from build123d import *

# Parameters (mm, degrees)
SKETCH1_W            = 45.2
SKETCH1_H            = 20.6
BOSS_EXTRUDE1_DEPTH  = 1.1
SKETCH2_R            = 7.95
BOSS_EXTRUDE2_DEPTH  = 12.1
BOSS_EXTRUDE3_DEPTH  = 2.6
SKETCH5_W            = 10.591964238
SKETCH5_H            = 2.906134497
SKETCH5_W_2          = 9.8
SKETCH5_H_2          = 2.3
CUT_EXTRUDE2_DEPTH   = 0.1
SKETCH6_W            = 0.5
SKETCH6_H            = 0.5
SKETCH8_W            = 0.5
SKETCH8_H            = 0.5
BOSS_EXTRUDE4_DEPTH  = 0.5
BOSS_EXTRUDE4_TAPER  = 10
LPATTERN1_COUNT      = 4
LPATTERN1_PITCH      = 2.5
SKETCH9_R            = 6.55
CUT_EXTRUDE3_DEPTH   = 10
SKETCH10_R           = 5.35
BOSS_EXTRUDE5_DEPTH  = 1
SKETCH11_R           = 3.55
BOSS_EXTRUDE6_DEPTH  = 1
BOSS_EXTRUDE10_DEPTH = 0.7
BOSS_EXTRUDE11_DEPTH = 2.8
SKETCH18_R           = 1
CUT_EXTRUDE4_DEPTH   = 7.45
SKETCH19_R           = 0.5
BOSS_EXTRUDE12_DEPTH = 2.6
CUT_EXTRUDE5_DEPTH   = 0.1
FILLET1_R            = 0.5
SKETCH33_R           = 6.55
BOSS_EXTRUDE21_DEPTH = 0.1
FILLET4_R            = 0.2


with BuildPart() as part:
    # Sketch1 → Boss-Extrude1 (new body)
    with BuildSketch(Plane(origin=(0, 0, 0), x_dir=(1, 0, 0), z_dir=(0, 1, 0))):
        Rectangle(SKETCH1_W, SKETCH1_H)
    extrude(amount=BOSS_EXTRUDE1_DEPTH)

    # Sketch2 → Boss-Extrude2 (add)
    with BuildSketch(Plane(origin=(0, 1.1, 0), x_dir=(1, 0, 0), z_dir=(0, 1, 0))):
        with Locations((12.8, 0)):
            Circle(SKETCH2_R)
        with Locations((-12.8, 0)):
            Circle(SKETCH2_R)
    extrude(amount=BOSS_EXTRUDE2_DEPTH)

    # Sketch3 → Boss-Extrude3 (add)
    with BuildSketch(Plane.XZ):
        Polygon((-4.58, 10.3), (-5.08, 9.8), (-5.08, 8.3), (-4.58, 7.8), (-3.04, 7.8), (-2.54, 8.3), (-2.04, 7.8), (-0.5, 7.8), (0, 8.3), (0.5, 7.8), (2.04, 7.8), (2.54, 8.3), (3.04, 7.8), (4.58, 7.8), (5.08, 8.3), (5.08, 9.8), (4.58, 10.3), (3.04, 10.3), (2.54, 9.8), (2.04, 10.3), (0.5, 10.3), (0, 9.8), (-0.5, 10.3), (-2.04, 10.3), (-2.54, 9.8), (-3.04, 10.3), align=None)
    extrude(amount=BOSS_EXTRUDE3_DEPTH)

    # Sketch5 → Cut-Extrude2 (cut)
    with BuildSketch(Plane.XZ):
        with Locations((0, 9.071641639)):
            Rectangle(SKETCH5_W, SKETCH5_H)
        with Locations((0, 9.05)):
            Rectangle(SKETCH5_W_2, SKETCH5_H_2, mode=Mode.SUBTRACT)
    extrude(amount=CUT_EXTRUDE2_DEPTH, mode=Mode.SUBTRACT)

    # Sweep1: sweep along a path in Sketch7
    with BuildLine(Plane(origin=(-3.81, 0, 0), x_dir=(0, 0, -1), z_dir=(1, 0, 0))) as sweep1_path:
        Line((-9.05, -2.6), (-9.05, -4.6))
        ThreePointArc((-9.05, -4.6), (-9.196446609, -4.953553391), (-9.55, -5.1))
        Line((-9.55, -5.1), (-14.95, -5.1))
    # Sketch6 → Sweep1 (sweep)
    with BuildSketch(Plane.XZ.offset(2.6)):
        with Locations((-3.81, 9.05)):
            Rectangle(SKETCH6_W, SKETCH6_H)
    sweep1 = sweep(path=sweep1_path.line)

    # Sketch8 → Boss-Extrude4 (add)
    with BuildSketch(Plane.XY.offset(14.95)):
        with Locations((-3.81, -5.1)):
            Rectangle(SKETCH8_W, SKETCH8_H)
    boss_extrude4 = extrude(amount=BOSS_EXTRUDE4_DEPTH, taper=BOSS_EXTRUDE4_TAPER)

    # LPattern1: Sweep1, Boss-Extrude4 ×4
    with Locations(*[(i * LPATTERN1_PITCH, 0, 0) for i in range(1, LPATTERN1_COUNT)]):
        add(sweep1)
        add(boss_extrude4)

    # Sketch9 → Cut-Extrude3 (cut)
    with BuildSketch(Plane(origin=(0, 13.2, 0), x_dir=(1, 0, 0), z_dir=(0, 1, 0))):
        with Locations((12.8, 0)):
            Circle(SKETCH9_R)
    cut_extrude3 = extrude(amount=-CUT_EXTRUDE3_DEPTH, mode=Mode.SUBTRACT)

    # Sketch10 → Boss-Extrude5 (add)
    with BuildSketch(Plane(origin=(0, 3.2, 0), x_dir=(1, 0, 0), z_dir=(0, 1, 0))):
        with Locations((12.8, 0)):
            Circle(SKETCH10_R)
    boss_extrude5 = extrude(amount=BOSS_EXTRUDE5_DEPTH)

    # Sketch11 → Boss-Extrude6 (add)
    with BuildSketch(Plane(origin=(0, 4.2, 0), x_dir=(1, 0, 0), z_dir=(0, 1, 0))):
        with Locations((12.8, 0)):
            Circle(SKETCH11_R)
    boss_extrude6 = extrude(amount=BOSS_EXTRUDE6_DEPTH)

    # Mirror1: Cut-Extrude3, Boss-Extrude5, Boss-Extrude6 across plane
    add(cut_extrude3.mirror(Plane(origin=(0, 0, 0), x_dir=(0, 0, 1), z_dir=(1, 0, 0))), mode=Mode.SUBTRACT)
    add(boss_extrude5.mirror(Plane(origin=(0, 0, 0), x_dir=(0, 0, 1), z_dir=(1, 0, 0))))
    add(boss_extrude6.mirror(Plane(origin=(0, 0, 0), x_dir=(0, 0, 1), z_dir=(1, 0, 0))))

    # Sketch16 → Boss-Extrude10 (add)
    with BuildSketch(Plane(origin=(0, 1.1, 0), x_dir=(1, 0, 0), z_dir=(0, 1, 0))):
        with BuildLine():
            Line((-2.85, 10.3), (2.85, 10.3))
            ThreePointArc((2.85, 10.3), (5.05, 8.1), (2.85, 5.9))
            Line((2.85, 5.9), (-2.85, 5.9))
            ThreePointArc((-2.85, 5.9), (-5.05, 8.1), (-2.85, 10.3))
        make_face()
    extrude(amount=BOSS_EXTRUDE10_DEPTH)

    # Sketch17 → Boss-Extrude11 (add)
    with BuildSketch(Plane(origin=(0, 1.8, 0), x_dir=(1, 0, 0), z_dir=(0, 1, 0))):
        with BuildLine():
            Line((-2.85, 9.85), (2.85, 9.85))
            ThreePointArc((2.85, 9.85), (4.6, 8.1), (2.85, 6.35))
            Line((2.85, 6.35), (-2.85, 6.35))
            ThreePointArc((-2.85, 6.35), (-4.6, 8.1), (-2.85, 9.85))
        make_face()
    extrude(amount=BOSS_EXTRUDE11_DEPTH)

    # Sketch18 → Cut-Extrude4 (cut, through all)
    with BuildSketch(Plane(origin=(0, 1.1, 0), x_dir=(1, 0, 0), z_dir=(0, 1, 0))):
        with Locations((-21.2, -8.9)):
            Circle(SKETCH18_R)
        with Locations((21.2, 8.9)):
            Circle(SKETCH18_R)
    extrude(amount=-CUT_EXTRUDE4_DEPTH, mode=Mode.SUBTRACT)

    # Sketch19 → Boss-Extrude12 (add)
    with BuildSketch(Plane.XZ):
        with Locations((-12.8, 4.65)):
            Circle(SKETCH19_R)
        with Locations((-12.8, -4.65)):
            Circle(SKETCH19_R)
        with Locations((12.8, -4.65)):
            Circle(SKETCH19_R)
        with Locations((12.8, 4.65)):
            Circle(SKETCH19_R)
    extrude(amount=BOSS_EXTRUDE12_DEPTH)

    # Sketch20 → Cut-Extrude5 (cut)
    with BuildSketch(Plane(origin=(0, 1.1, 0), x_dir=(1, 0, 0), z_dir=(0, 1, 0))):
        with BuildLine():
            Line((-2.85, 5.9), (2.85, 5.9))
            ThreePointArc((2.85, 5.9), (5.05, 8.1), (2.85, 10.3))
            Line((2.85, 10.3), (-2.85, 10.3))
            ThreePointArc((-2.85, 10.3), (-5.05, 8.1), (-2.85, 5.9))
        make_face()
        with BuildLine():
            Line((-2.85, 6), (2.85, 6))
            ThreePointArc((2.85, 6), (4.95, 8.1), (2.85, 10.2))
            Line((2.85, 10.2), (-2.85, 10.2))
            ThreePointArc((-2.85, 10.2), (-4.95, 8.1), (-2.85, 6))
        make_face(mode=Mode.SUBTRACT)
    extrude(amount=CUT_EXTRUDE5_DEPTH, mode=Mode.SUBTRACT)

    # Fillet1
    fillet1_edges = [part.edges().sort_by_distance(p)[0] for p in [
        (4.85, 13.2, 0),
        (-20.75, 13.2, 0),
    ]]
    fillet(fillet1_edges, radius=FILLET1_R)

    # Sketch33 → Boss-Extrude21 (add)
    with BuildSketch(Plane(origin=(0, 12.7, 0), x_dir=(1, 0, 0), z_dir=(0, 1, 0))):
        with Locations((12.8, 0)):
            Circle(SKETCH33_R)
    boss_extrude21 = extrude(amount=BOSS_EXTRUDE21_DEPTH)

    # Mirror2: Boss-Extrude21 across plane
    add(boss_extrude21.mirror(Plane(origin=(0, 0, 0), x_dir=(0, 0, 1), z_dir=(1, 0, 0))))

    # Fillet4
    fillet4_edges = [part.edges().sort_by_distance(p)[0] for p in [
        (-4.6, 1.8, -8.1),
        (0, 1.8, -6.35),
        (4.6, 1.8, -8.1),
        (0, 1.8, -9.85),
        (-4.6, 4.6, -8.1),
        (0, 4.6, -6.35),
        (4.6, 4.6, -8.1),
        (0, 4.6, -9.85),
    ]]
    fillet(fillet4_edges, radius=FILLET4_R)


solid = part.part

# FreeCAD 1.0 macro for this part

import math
import FreeCAD as App
import Part
import Sketcher

V = App.Vector


def edges_at(feature, points):
    """Names of the edges that pass closest to the given points."""
    edges = feature.Shape.Edges
    near = lambda p: min(range(len(edges)), key=lambda i: edges[i].distToShape(Part.Vertex(*p))[0])
    return sorted({f"Edge{near(p) + 1}" for p in points})

doc = App.newDocument("Part")
body = doc.addObject("PartDesign::Body", "Body")

# Sketch on XZ plane
sketch1 = body.newObject("Sketcher::SketchObject", "Sketch")
sketch1.AttachmentSupport = (doc.getObject("XZ_Plane"), [""])
sketch1.MapMode = "FlatFace"
sketch1.addGeometry(Part.LineSegment(V(-23, -10, 0), V(-23, 10, 0)), False)
sketch1.addGeometry(Part.LineSegment(V(-23, 10, 0), V(23, 10, 0)), False)
sketch1.addGeometry(Part.LineSegment(V(23, 10, 0), V(23, -10, 0)), False)
sketch1.addGeometry(Part.LineSegment(V(23, -10, 0), V(-23, -10, 0)), False)
sketch1.addConstraint(Sketcher.Constraint("Coincident", 0, 2, 1, 1))
sketch1.addConstraint(Sketcher.Constraint("Coincident", 1, 2, 2, 1))
sketch1.addConstraint(Sketcher.Constraint("Coincident", 2, 2, 3, 1))
sketch1.addConstraint(Sketcher.Constraint("Coincident", 3, 2, 0, 1))
sketch1.addConstraint(Sketcher.Constraint("Vertical", 0))
sketch1.addConstraint(Sketcher.Constraint("Horizontal", 1))
sketch1.addConstraint(Sketcher.Constraint("Vertical", 2))
sketch1.addConstraint(Sketcher.Constraint("Horizontal", 3))
sketch1.addConstraint(Sketcher.Constraint("Symmetric", 0, 2, 2, 2, -1, 1))
sketch1.addConstraint(Sketcher.Constraint("DistanceX", 1, 1, 1, 2, 45.2))
sketch1.addConstraint(Sketcher.Constraint("DistanceY", 0, 1, 0, 2, 20.6))
pad1 = body.newObject("PartDesign::Pad", "Pad")
pad1.Profile = sketch1
pad1.Length = 1.1
pad1.Reversed = True

# Sketch on XZ plane
sketch2 = body.newObject("Sketcher::SketchObject", "Sketch001")
sketch2.AttachmentSupport = (doc.getObject("XZ_Plane"), [""])
sketch2.MapMode = "FlatFace"
sketch2.AttachmentOffset = App.Placement(V(0, 0, -1.1), App.Rotation())
sketch2.addGeometry(Part.Circle(V(13, 0, 0), V(0, 0, 1), 8), False)
sketch2.addGeometry(Part.Circle(V(-13, 0, 0), V(0, 0, 1), 8), False)
sketch2.addConstraint(Sketcher.Constraint("Equal", 0, 1))
sketch2.addConstraint(Sketcher.Constraint("Symmetric", 0, 3, 1, 3, -1, 1))
sketch2.addConstraint(Sketcher.Constraint("PointOnObject", 0, 3, -1))
sketch2.addConstraint(Sketcher.Constraint("Diameter", 0, 15.9))
sketch2.addConstraint(Sketcher.Constraint("DistanceX", -1, 1, 0, 3, 12.8))
pad2 = body.newObject("PartDesign::Pad", "Pad001")
pad2.Profile = sketch2
pad2.Length = 12.1
pad2.Reversed = True

# Sketch on XZ plane
sketch3 = body.newObject("Sketcher::SketchObject", "Sketch002")
sketch3.AttachmentSupport = (doc.getObject("XZ_Plane"), [""])
sketch3.MapMode = "FlatFace"
sketch3.addGeometry(Part.LineSegment(V(-4.6, 10.3, 0), V(-5.1, 9.8, 0)), False)
sketch3.addGeometry(Part.LineSegment(V(-5.1, 9.8, 0), V(-5.1, 8.3, 0)), False)
sketch3.addGeometry(Part.LineSegment(V(-5.1, 8.3, 0), V(-4.6, 7.8, 0)), False)
sketch3.addGeometry(Part.LineSegment(V(-4.6, 7.8, 0), V(-3, 7.8, 0)), False)
sketch3.addGeometry(Part.LineSegment(V(-3, 7.8, 0), V(-2.5, 8.3, 0)), False)
sketch3.addGeometry(Part.LineSegment(V(-2.5, 8.3, 0), V(-2, 7.8, 0)), False)
sketch3.addGeometry(Part.LineSegment(V(-2, 7.8, 0), V(-0.5, 7.8, 0)), False)
sketch3.addGeometry(Part.LineSegment(V(-0.5, 7.8, 0), V(0, 8.3, 0)), False)
sketch3.addGeometry(Part.LineSegment(V(0, 8.3, 0), V(0.5, 7.8, 0)), False)
sketch3.addGeometry(Part.LineSegment(V(0.5, 7.8, 0), V(2, 7.8, 0)), False)
sketch3.addGeometry(Part.LineSegment(V(2, 7.8, 0), V(2.5, 8.3, 0)), False)
sketch3.addGeometry(Part.LineSegment(V(2.5, 8.3, 0), V(3, 7.8, 0)), False)
sketch3.addGeometry(Part.LineSegment(V(3, 7.8, 0), V(4.6, 7.8, 0)), False)
sketch3.addGeometry(Part.LineSegment(V(4.6, 7.8, 0), V(5.1, 8.3, 0)), False)
sketch3.addGeometry(Part.LineSegment(V(5.1, 8.3, 0), V(5.1, 9.8, 0)), False)
sketch3.addGeometry(Part.LineSegment(V(5.1, 9.8, 0), V(4.6, 10.3, 0)), False)
sketch3.addGeometry(Part.LineSegment(V(4.6, 10.3, 0), V(3, 10.3, 0)), False)
sketch3.addGeometry(Part.LineSegment(V(3, 10.3, 0), V(2.5, 9.8, 0)), False)
sketch3.addGeometry(Part.LineSegment(V(2.5, 9.8, 0), V(2, 10.3, 0)), False)
sketch3.addGeometry(Part.LineSegment(V(2, 10.3, 0), V(0.5, 10.3, 0)), False)
sketch3.addGeometry(Part.LineSegment(V(0.5, 10.3, 0), V(0, 9.8, 0)), False)
sketch3.addGeometry(Part.LineSegment(V(0, 9.8, 0), V(-0.5, 10.3, 0)), False)
sketch3.addGeometry(Part.LineSegment(V(-0.5, 10.3, 0), V(-2, 10.3, 0)), False)
sketch3.addGeometry(Part.LineSegment(V(-2, 10.3, 0), V(-2.5, 9.8, 0)), False)
sketch3.addGeometry(Part.LineSegment(V(-2.5, 9.8, 0), V(-3, 10.3, 0)), False)
sketch3.addGeometry(Part.LineSegment(V(-3, 10.3, 0), V(-4.6, 10.3, 0)), False)
sketch3.addConstraint(Sketcher.Constraint("Coincident", 0, 2, 1, 1))
sketch3.addConstraint(Sketcher.Constraint("Coincident", 1, 2, 2, 1))
sketch3.addConstraint(Sketcher.Constraint("Coincident", 2, 2, 3, 1))
sketch3.addConstraint(Sketcher.Constraint("Coincident", 3, 2, 4, 1))
sketch3.addConstraint(Sketcher.Constraint("Coincident", 4, 2, 5, 1))
sketch3.addConstraint(Sketcher.Constraint("Coincident", 5, 2, 6, 1))
sketch3.addConstraint(Sketcher.Constraint("Coincident", 6, 2, 7, 1))
sketch3.addConstraint(Sketcher.Constraint("Coincident", 7, 2, 8, 1))
sketch3.addConstraint(Sketcher.Constraint("Coincident", 8, 2, 9, 1))
sketch3.addConstraint(Sketcher.Constraint("Coincident", 9, 2, 10, 1))
sketch3.addConstraint(Sketcher.Constraint("Coincident", 10, 2, 11, 1))
sketch3.addConstraint(Sketcher.Constraint("Coincident", 11, 2, 12, 1))
sketch3.addConstraint(Sketcher.Constraint("Coincident", 12, 2, 13, 1))
sketch3.addConstraint(Sketcher.Constraint("Coincident", 13, 2, 14, 1))
sketch3.addConstraint(Sketcher.Constraint("Coincident", 14, 2, 15, 1))
sketch3.addConstraint(Sketcher.Constraint("Coincident", 15, 2, 16, 1))
sketch3.addConstraint(Sketcher.Constraint("Coincident", 16, 2, 17, 1))
sketch3.addConstraint(Sketcher.Constraint("Coincident", 17, 2, 18, 1))
sketch3.addConstraint(Sketcher.Constraint("Coincident", 18, 2, 19, 1))
sketch3.addConstraint(Sketcher.Constraint("Coincident", 19, 2, 20, 1))
sketch3.addConstraint(Sketcher.Constraint("Coincident", 20, 2, 21, 1))
sketch3.addConstraint(Sketcher.Constraint("Coincident", 21, 2, 22, 1))
sketch3.addConstraint(Sketcher.Constraint("Coincident", 22, 2, 23, 1))
sketch3.addConstraint(Sketcher.Constraint("Coincident", 23, 2, 24, 1))
sketch3.addConstraint(Sketcher.Constraint("Coincident", 24, 2, 25, 1))
sketch3.addConstraint(Sketcher.Constraint("Coincident", 25, 2, 0, 1))
sketch3.addConstraint(Sketcher.Constraint("Vertical", 1))
sketch3.addConstraint(Sketcher.Constraint("Horizontal", 3))
sketch3.addConstraint(Sketcher.Constraint("Horizontal", 6))
sketch3.addConstraint(Sketcher.Constraint("Horizontal", 9))
sketch3.addConstraint(Sketcher.Constraint("Horizontal", 12))
sketch3.addConstraint(Sketcher.Constraint("Vertical", 14))
sketch3.addConstraint(Sketcher.Constraint("Horizontal", 16))
sketch3.addConstraint(Sketcher.Constraint("Horizontal", 19))
sketch3.addConstraint(Sketcher.Constraint("Horizontal", 22))
sketch3.addConstraint(Sketcher.Constraint("Horizontal", 25))
sketch3.addConstraint(Sketcher.Constraint("Symmetric", 6, 2, 8, 2, -2))
sketch3.addConstraint(Sketcher.Constraint("Symmetric", 4, 2, 10, 2, -2))
sketch3.addConstraint(Sketcher.Constraint("Symmetric", 3, 2, 11, 2, -2))
sketch3.addConstraint(Sketcher.Constraint("Symmetric", 1, 2, 13, 2, -2))
sketch3.addConstraint(Sketcher.Constraint("Symmetric", 19, 2, 21, 2, -2))
sketch3.addConstraint(Sketcher.Constraint("Symmetric", 17, 2, 23, 2, -2))
sketch3.addConstraint(Sketcher.Constraint("Symmetric", 16, 2, 24, 2, -2))
sketch3.addConstraint(Sketcher.Constraint("PointOnObject", 7, 2, -2))
sketch3.addConstraint(Sketcher.Constraint("PointOnObject", 20, 2, -2))
sketch3.addConstraint(Sketcher.Constraint("Perpendicular", 0, 2))
sketch3.addConstraint(Sketcher.Constraint("Perpendicular", 2, 4))
sketch3.addConstraint(Sketcher.Constraint("Perpendicular", 4, 5))
sketch3.addConstraint(Sketcher.Constraint("Perpendicular", 5, 7))
sketch3.addConstraint(Sketcher.Constraint("Perpendicular", 7, 8))
sketch3.addConstraint(Sketcher.Constraint("Perpendicular", 8, 10))
sketch3.addConstraint(Sketcher.Constraint("Perpendicular", 11, 13))
sketch3.addConstraint(Sketcher.Constraint("Perpendicular", 13, 15))
sketch3.addConstraint(Sketcher.Constraint("Perpendicular", 15, 17))
sketch3.addConstraint(Sketcher.Constraint("Perpendicular", 17, 18))
sketch3.addConstraint(Sketcher.Constraint("Perpendicular", 18, 20))
sketch3.addConstraint(Sketcher.Constraint("Perpendicular", 21, 23))
sketch3.addConstraint(Sketcher.Constraint("Horizontal", 1, 2, 4, 2))
sketch3.addConstraint(Sketcher.Constraint("Horizontal", 3, 2, 5, 2))
sketch3.addConstraint(Sketcher.Constraint("Horizontal", 4, 2, 7, 2))
sketch3.addConstraint(Sketcher.Constraint("Horizontal", 0, 2, 14, 2))
sketch3.addConstraint(Sketcher.Constraint("Horizontal", 14, 2, 17, 2))
sketch3.addConstraint(Sketcher.Constraint("Horizontal", 16, 2, 18, 2))
sketch3.addConstraint(Sketcher.Constraint("Horizontal", 17, 2, 20, 2))
sketch3.addConstraint(Sketcher.Constraint("Vertical", 12, 2, 15, 2))
sketch3.addConstraint(Sketcher.Constraint("Vertical", 11, 2, 16, 2))
sketch3.addConstraint(Sketcher.Constraint("Equal", 3, 6))
sketch3.addConstraint(Sketcher.Constraint("DistanceY", 1, 2, 1, 1, 1.5))
sketch3.addConstraint(Sketcher.Constraint("DistanceY", 2, 2, 0, 2, 2.0))
sketch3.addConstraint(Sketcher.Constraint("DistanceX", 3, 1, 3, 2, 1.54))
sketch3.addConstraint(Sketcher.Constraint("DistanceY", -1, 1, 0, 2, 9.8))
pad3 = body.newObject("PartDesign::Pad", "Pad002")
pad3.Profile = sketch3
pad3.Length = 2.6

# Sketch on XZ plane
sketch4 = body.newObject("Sketcher::SketchObject", "Sketch003")
sketch4.AttachmentSupport = (doc.getObject("XZ_Plane"), [""])
sketch4.MapMode = "FlatFace"
sketch4.addGeometry(Part.LineSegment(V(-5.3, 10.5, 0), V(-5.3, 7.6, 0)), False)
sketch4.addGeometry(Part.LineSegment(V(-5.3, 7.6, 0), V(5.3, 7.6, 0)), False)
sketch4.addGeometry(Part.LineSegment(V(5.3, 7.6, 0), V(5.3, 10.5, 0)), False)
sketch4.addGeometry(Part.LineSegment(V(5.3, 10.5, 0), V(-5.3, 10.5, 0)), False)
sketch4.addGeometry(Part.LineSegment(V(4.9, 7.9, 0), V(-4.9, 7.9, 0)), False)
sketch4.addGeometry(Part.LineSegment(V(-4.9, 7.9, 0), V(-4.9, 10.2, 0)), False)
sketch4.addGeometry(Part.LineSegment(V(-4.9, 10.2, 0), V(4.9, 10.2, 0)), False)
sketch4.addGeometry(Part.LineSegment(V(4.9, 10.2, 0), V(4.9, 7.9, 0)), False)
sketch4.addConstraint(Sketcher.Constraint("Coincident", 0, 2, 1, 1))
sketch4.addConstraint(Sketcher.Constraint("Coincident", 1, 2, 2, 1))
sketch4.addConstraint(Sketcher.Constraint("Coincident", 2, 2, 3, 1))
sketch4.addConstraint(Sketcher.Constraint("Coincident", 3, 2, 0, 1))
sketch4.addConstraint(Sketcher.Constraint("Coincident", 4, 2, 5, 1))
sketch4.addConstraint(Sketcher.Constraint("Coincident", 5, 2, 6, 1))
sketch4.addConstraint(Sketcher.Constraint("Coincident", 6, 2, 7, 1))
sketch4.addConstraint(Sketcher.Constraint("Coincident", 7, 2, 4, 1))
sketch4.addConstraint(Sketcher.Constraint("Vertical", 0))
sketch4.addConstraint(Sketcher.Constraint("Horizontal", 1))
sketch4.addConstraint(Sketcher.Constraint("Vertical", 2))
sketch4.addConstraint(Sketcher.Constraint("Horizontal", 3))
sketch4.addConstraint(Sketcher.Constraint("Horizontal", 4))
sketch4.addConstraint(Sketcher.Constraint("Vertical", 5))
sketch4.addConstraint(Sketcher.Constraint("Horizontal", 6))
sketch4.addConstraint(Sketcher.Constraint("Vertical", 7))
sketch4.addConstraint(Sketcher.Constraint("DistanceX", 4, 2, 4, 1, 9.8))
sketch4.addConstraint(Sketcher.Constraint("DistanceY", 5, 1, 5, 2, 2.3))
sketch4.addConstraint(Sketcher.Constraint("DistanceX", 4, 2, -1, 1, 4.9))
sketch4.addConstraint(Sketcher.Constraint("DistanceY", -1, 1, 4, 2, 7.9))
sketch4.addConstraint(Sketcher.Constraint("DistanceX", 1, 1, 1, 2, 10.591964))
sketch4.addConstraint(Sketcher.Constraint("DistanceY", 0, 2, 0, 1, 2.906134))
sketch4.addConstraint(Sketcher.Constraint("DistanceY", -1, 1, 2, 2, 10.524709))
sketch4.addConstraint(Sketcher.Constraint("DistanceX", 0, 2, -1, 1, 5.295982))
pocket1 = body.newObject("PartDesign::Pocket", "Pocket")
pocket1.Profile = sketch4
pocket1.Length = 0.1
pocket1.Reversed = True

# Sketch on XZ plane
sketch5 = body.newObject("Sketcher::SketchObject", "Sketch004")
sketch5.AttachmentSupport = (doc.getObject("XZ_Plane"), [""])
sketch5.MapMode = "FlatFace"
sketch5.AttachmentOffset = App.Placement(V(0, 0, 2.6), App.Rotation())
sketch5.addGeometry(Part.LineSegment(V(-4.06, 9.3, 0), V(-4.06, 8.8, 0)), False)
sketch5.addGeometry(Part.LineSegment(V(-4.06, 8.8, 0), V(-3.56, 8.8, 0)), False)
sketch5.addGeometry(Part.LineSegment(V(-3.56, 8.8, 0), V(-3.56, 9.3, 0)), False)
sketch5.addGeometry(Part.LineSegment(V(-3.56, 9.3, 0), V(-4.06, 9.3, 0)), False)
sketch5.addConstraint(Sketcher.Constraint("Coincident", 0, 2, 1, 1))
sketch5.addConstraint(Sketcher.Constraint("Coincident", 1, 2, 2, 1))
sketch5.addConstraint(Sketcher.Constraint("Coincident", 2, 2, 3, 1))
sketch5.addConstraint(Sketcher.Constraint("Coincident", 3, 2, 0, 1))
sketch5.addConstraint(Sketcher.Constraint("Vertical", 0))
sketch5.addConstraint(Sketcher.Constraint("Horizontal", 1))
sketch5.addConstraint(Sketcher.Constraint("Vertical", 2))
sketch5.addConstraint(Sketcher.Constraint("Horizontal", 3))
sketch5.addConstraint(Sketcher.Constraint("Equal", 3, 0))
sketch5.addConstraint(Sketcher.Constraint("DistanceX", 1, 1, 1, 2, 0.5))
sketch5.addConstraint(Sketcher.Constraint("DistanceY", -1, 1, 0, 2, 8.8))
sketch5.addConstraint(Sketcher.Constraint("DistanceX", 0, 2, -1, 1, 4.06))

# Sketch on YZ plane
sketch6 = body.newObject("Sketcher::SketchObject", "Sketch005")
sketch6.AttachmentSupport = (doc.getObject("YZ_Plane"), [""])
sketch6.MapMode = "FlatFace"
sketch6.AttachmentOffset = App.Placement(V(0, 0, -3.81), App.Rotation())
sketch6.addGeometry(Part.LineSegment(V(-2.6, 9.05, 0), V(-4.6, 9.05, 0)), False)
sketch6.addGeometry(Part.ArcOfCircle(Part.Circle(V(-4.6, 9.55, 0), V(0, 0, 1), 0.5), math.radians(180), math.radians(270)), False)
sketch6.addGeometry(Part.LineSegment(V(-5.1, 9.55, 0), V(-5.1, 14.95, 0)), False)
sketch6.addConstraint(Sketcher.Constraint("Tangent", 0, 2, 1, 2))
sketch6.addConstraint(Sketcher.Constraint("Tangent", 1, 1, 2, 1))
sketch6.addConstraint(Sketcher.Constraint("Horizontal", 0))
sketch6.addConstraint(Sketcher.Constraint("Vertical", 2))
sketch6.addConstraint(Sketcher.Constraint("Radius", 1, 0.5))
sketch6.addConstraint(Sketcher.Constraint("DistanceX", 0, 2, 0, 1, 2.0))
sketch6.addConstraint(Sketcher.Constraint("DistanceY", 2, 1, 2, 2, 5.4))
sketch6.addConstraint(Sketcher.Constraint("DistanceX", 1, 3, -1, 1, 4.6))
sketch6.addConstraint(Sketcher.Constraint("DistanceY", -1, 1, 1, 3, 9.55))
doc.recompute()

additivepipe = body.newObject("PartDesign::AdditivePipe", "AdditivePipe")
additivepipe.Profile = sketch5
additivepipe.Spine = (sketch6, ["Edge1", "Edge2", "Edge3"])

# Sketch on XY plane
sketch7 = body.newObject("Sketcher::SketchObject", "Sketch006")
sketch7.AttachmentSupport = (doc.getObject("XY_Plane"), [""])
sketch7.MapMode = "FlatFace"
sketch7.AttachmentOffset = App.Placement(V(0, 0, 14.95), App.Rotation())
sketch7.addGeometry(Part.LineSegment(V(-4.06, -4.85, 0), V(-4.06, -5.35, 0)), False)
sketch7.addGeometry(Part.LineSegment(V(-4.06, -5.35, 0), V(-3.56, -5.35, 0)), False)
sketch7.addGeometry(Part.LineSegment(V(-3.56, -5.35, 0), V(-3.56, -4.85, 0)), False)
sketch7.addGeometry(Part.LineSegment(V(-3.56, -4.85, 0), V(-4.06, -4.85, 0)), False)
sketch7.addConstraint(Sketcher.Constraint("Coincident", 0, 2, 1, 1))
sketch7.addConstraint(Sketcher.Constraint("Coincident", 1, 2, 2, 1))
sketch7.addConstraint(Sketcher.Constraint("Coincident", 2, 2, 3, 1))
sketch7.addConstraint(Sketcher.Constraint("Coincident", 3, 2, 0, 1))
sketch7.addConstraint(Sketcher.Constraint("Vertical", 0))
sketch7.addConstraint(Sketcher.Constraint("Horizontal", 1))
sketch7.addConstraint(Sketcher.Constraint("Vertical", 2))
sketch7.addConstraint(Sketcher.Constraint("Horizontal", 3))
sketch7.addConstraint(Sketcher.Constraint("Equal", 3, 0))
sketch7.addConstraint(Sketcher.Constraint("DistanceX", 1, 1, 1, 2, 0.5))
sketch7.addConstraint(Sketcher.Constraint("DistanceX", 0, 2, -1, 1, 4.06))
sketch7.addConstraint(Sketcher.Constraint("DistanceY", 0, 2, -1, 1, 5.35))
pad4 = body.newObject("PartDesign::Pad", "Pad003")
pad4.Profile = sketch7
pad4.Length = 0.5
pad4.TaperAngle = -10
doc.recompute()

linearpattern = body.newObject("PartDesign::LinearPattern", "LinearPattern")
linearpattern.Originals = [additivepipe, pad4]
linearpattern.Direction = (doc.getObject("X_Axis"), [""])
linearpattern.Mode = "offset"
linearpattern.Offset = 2.5
linearpattern.Occurrences = 4
body.Tip = linearpattern

# Sketch on XZ plane
sketch8 = body.newObject("Sketcher::SketchObject", "Sketch007")
sketch8.AttachmentSupport = (doc.getObject("XZ_Plane"), [""])
sketch8.MapMode = "FlatFace"
sketch8.AttachmentOffset = App.Placement(V(0, 0, -13.2), App.Rotation())
sketch8.addGeometry(Part.Circle(V(13, 0, 0), V(0, 0, 1), 7), False)
sketch8.addConstraint(Sketcher.Constraint("PointOnObject", 0, 3, -1))
sketch8.addConstraint(Sketcher.Constraint("Diameter", 0, 13.1))
sketch8.addConstraint(Sketcher.Constraint("DistanceX", -1, 1, 0, 3, 12.8))
pocket2 = body.newObject("PartDesign::Pocket", "Pocket001")
pocket2.Profile = sketch8
pocket2.Length = 10
pocket2.Reversed = True

# Sketch on XZ plane
sketch9 = body.newObject("Sketcher::SketchObject", "Sketch008")
sketch9.AttachmentSupport = (doc.getObject("XZ_Plane"), [""])
sketch9.MapMode = "FlatFace"
sketch9.AttachmentOffset = App.Placement(V(0, 0, -3.2), App.Rotation())
sketch9.addGeometry(Part.Circle(V(13, 0, 0), V(0, 0, 1), 5), False)
sketch9.addConstraint(Sketcher.Constraint("PointOnObject", 0, 3, -1))
sketch9.addConstraint(Sketcher.Constraint("Diameter", 0, 10.7))
sketch9.addConstraint(Sketcher.Constraint("DistanceX", -1, 1, 0, 3, 12.8))
pad5 = body.newObject("PartDesign::Pad", "Pad004")
pad5.Profile = sketch9
pad5.Length = 1
pad5.Reversed = True

# Sketch on XZ plane
sketch10 = body.newObject("Sketcher::SketchObject", "Sketch009")
sketch10.AttachmentSupport = (doc.getObject("XZ_Plane"), [""])
sketch10.MapMode = "FlatFace"
sketch10.AttachmentOffset = App.Placement(V(0, 0, -4.2), App.Rotation())
sketch10.addGeometry(Part.Circle(V(12.8, 0, 0), V(0, 0, 1), 3.5), False)
sketch10.addConstraint(Sketcher.Constraint("PointOnObject", 0, 3, -1))
sketch10.addConstraint(Sketcher.Constraint("Diameter", 0, 7.1))
sketch10.addConstraint(Sketcher.Constraint("DistanceX", -1, 1, 0, 3, 12.8))
pad6 = body.newObject("PartDesign::Pad", "Pad005")
pad6.Profile = sketch10
pad6.Length = 1
pad6.Reversed = True
doc.recompute()

mirrored = body.newObject("PartDesign::Mirrored", "Mirrored")
mirrored.Originals = [pocket2, pad5, pad6]
mirrored.MirrorPlane = (doc.getObject("YZ_Plane"), [""])
body.Tip = mirrored

# Sketch on XZ plane
sketch11 = body.newObject("Sketcher::SketchObject", "Sketch010")
sketch11.AttachmentSupport = (doc.getObject("XZ_Plane"), [""])
sketch11.MapMode = "FlatFace"
sketch11.AttachmentOffset = App.Placement(V(0, 0, -1.1), App.Rotation())
sketch11.addGeometry(Part.LineSegment(V(2.9, -10.3, 0), V(-2.9, -10.3, 0)), False)
sketch11.addGeometry(Part.ArcOfCircle(Part.Circle(V(-2.9, -8.1, 0), V(0, 0, 1), 2.2), math.radians(90), math.radians(270)), False)
sketch11.addGeometry(Part.LineSegment(V(-2.9, -5.9, 0), V(2.9, -5.9, 0)), False)
sketch11.addGeometry(Part.ArcOfCircle(Part.Circle(V(2.9, -8.1, 0), V(0, 0, 1), 2.2), math.radians(-90), math.radians(90)), False)
sketch11.addConstraint(Sketcher.Constraint("Tangent", 0, 2, 1, 2))
sketch11.addConstraint(Sketcher.Constraint("Tangent", 1, 1, 2, 1))
sketch11.addConstraint(Sketcher.Constraint("Tangent", 2, 2, 3, 2))
sketch11.addConstraint(Sketcher.Constraint("Tangent", 3, 1, 0, 1))
sketch11.addConstraint(Sketcher.Constraint("Horizontal", 0))
sketch11.addConstraint(Sketcher.Constraint("Horizontal", 2))
sketch11.addConstraint(Sketcher.Constraint("Radius", 1, 2.2))
sketch11.addConstraint(Sketcher.Constraint("DistanceX", 0, 2, 0, 1, 5.7))
sketch11.addConstraint(Sketcher.Constraint("DistanceY", 1, 3, -1, 1, 8.1))
sketch11.addConstraint(Sketcher.Constraint("DistanceX", 1, 3, -1, 1, 2.85))
pad7 = body.newObject("PartDesign::Pad", "Pad006")
pad7.Profile = sketch11
pad7.Length = 0.7
pad7.Reversed = True

# Sketch on XZ plane
sketch12 = body.newObject("Sketcher::SketchObject", "Sketch011")
sketch12.AttachmentSupport = (doc.getObject("XZ_Plane"), [""])
sketch12.MapMode = "FlatFace"
sketch12.AttachmentOffset = App.Placement(V(0, 0, -1.8), App.Rotation())
sketch12.addGeometry(Part.LineSegment(V(2.9, -9.8, 0), V(-2.9, -9.8, 0)), False)
sketch12.addGeometry(Part.ArcOfCircle(Part.Circle(V(-2.9, -8.1, 0), V(0, 0, 1), 1.8), math.radians(90), math.radians(270)), False)
sketch12.addGeometry(Part.LineSegment(V(-2.9, -6.3, 0), V(2.9, -6.3, 0)), False)
sketch12.addGeometry(Part.ArcOfCircle(Part.Circle(V(2.9, -8.1, 0), V(0, 0, 1), 1.8), math.radians(-90), math.radians(90)), False)
sketch12.addConstraint(Sketcher.Constraint("Tangent", 0, 2, 1, 2))
sketch12.addConstraint(Sketcher.Constraint("Tangent", 1, 1, 2, 1))
sketch12.addConstraint(Sketcher.Constraint("Tangent", 2, 2, 3, 2))
sketch12.addConstraint(Sketcher.Constraint("Tangent", 3, 1, 0, 1))
sketch12.addConstraint(Sketcher.Constraint("Horizontal", 0))
sketch12.addConstraint(Sketcher.Constraint("Horizontal", 2))
sketch12.addConstraint(Sketcher.Constraint("Radius", 1, 1.75))
sketch12.addConstraint(Sketcher.Constraint("DistanceX", 0, 2, 0, 1, 5.7))
sketch12.addConstraint(Sketcher.Constraint("DistanceY", 1, 3, -1, 1, 8.1))
sketch12.addConstraint(Sketcher.Constraint("DistanceX", 1, 3, -1, 1, 2.85))
pad8 = body.newObject("PartDesign::Pad", "Pad007")
pad8.Profile = sketch12
pad8.Length = 2.8
pad8.Reversed = True

# Sketch on XZ plane
sketch13 = body.newObject("Sketcher::SketchObject", "Sketch012")
sketch13.AttachmentSupport = (doc.getObject("XZ_Plane"), [""])
sketch13.MapMode = "FlatFace"
sketch13.AttachmentOffset = App.Placement(V(0, 0, -1.1), App.Rotation())
sketch13.addGeometry(Part.Circle(V(-21.2, 8.9, 0), V(0, 0, 1), 1), False)
sketch13.addGeometry(Part.Circle(V(21.2, -8.9, 0), V(0, 0, 1), 1), False)
sketch13.addConstraint(Sketcher.Constraint("Equal", 0, 1))
sketch13.addConstraint(Sketcher.Constraint("Symmetric", 0, 3, 1, 3, -1, 1))
sketch13.addConstraint(Sketcher.Constraint("Diameter", 0, 2.0))
sketch13.addConstraint(Sketcher.Constraint("DistanceX", 0, 3, -1, 1, 21.2))
sketch13.addConstraint(Sketcher.Constraint("DistanceY", -1, 1, 0, 3, 8.9))
pocket3 = body.newObject("PartDesign::Pocket", "Pocket002")
pocket3.Profile = sketch13
pocket3.Type = "ThroughAll"
pocket3.Reversed = True

# Sketch on XZ plane
sketch14 = body.newObject("Sketcher::SketchObject", "Sketch013")
sketch14.AttachmentSupport = (doc.getObject("XZ_Plane"), [""])
sketch14.MapMode = "FlatFace"
sketch14.addGeometry(Part.Circle(V(-12.8, 4.7, 0), V(0, 0, 1), 0.5), False)
sketch14.addGeometry(Part.Circle(V(-12.8, -4.7, 0), V(0, 0, 1), 0.5), False)
sketch14.addGeometry(Part.Circle(V(12.8, -4.7, 0), V(0, 0, 1), 0.5), False)
sketch14.addGeometry(Part.Circle(V(12.8, 4.7, 0), V(0, 0, 1), 0.5), False)
sketch14.addConstraint(Sketcher.Constraint("Equal", 0, 1))
sketch14.addConstraint(Sketcher.Constraint("Equal", 1, 2))
sketch14.addConstraint(Sketcher.Constraint("Equal", 2, 3))
sketch14.addConstraint(Sketcher.Constraint("Symmetric", 0, 3, 2, 3, -1, 1))
sketch14.addConstraint(Sketcher.Constraint("Symmetric", 1, 3, 3, 3, -1, 1))
sketch14.addConstraint(Sketcher.Constraint("Symmetric", 1, 3, 2, 3, -2))
sketch14.addConstraint(Sketcher.Constraint("Diameter", 0, 1.0))
sketch14.addConstraint(Sketcher.Constraint("DistanceX", 0, 3, -1, 1, 12.8))
sketch14.addConstraint(Sketcher.Constraint("DistanceY", 1, 3, 0, 3, 9.3))
pad9 = body.newObject("PartDesign::Pad", "Pad008")
pad9.Profile = sketch14
pad9.Length = 2.6

# Sketch on XZ plane
sketch15 = body.newObject("Sketcher::SketchObject", "Sketch014")
sketch15.AttachmentSupport = (doc.getObject("XZ_Plane"), [""])
sketch15.MapMode = "FlatFace"
sketch15.AttachmentOffset = App.Placement(V(0, 0, -1.1), App.Rotation())
sketch15.addGeometry(Part.LineSegment(V(-2.9, -5.9, 0), V(2.9, -5.9, 0)), False)
sketch15.addGeometry(Part.ArcOfCircle(Part.Circle(V(2.9, -8.1, 0), V(0, 0, 1), 2.2), math.radians(-90), math.radians(90)), False)
sketch15.addGeometry(Part.LineSegment(V(2.9, -10.3, 0), V(-2.9, -10.3, 0)), False)
sketch15.addGeometry(Part.ArcOfCircle(Part.Circle(V(-2.9, -8.1, 0), V(0, 0, 1), 2.2), math.radians(90), math.radians(270)), False)
sketch15.addGeometry(Part.LineSegment(V(2.9, -6, 0), V(-2.9, -6, 0)), False)
sketch15.addGeometry(Part.ArcOfCircle(Part.Circle(V(-2.9, -8.1, 0), V(0, 0, 1), 2.1), math.radians(90), math.radians(270)), False)
sketch15.addGeometry(Part.LineSegment(V(-2.9, -10.2, 0), V(2.9, -10.2, 0)), False)
sketch15.addGeometry(Part.ArcOfCircle(Part.Circle(V(2.9, -8.1, 0), V(0, 0, 1), 2.1), math.radians(-90), math.radians(90)), False)
sketch15.addConstraint(Sketcher.Constraint("Tangent", 0, 2, 1, 2))
sketch15.addConstraint(Sketcher.Constraint("Tangent", 1, 1, 2, 1))
sketch15.addConstraint(Sketcher.Constraint("Tangent", 2, 2, 3, 2))
sketch15.addConstraint(Sketcher.Constraint("Tangent", 3, 1, 0, 1))
sketch15.addConstraint(Sketcher.Constraint("Tangent", 4, 2, 5, 1))
sketch15.addConstraint(Sketcher.Constraint("Tangent", 5, 2, 6, 1))
sketch15.addConstraint(Sketcher.Constraint("Tangent", 6, 2, 7, 1))
sketch15.addConstraint(Sketcher.Constraint("Tangent", 7, 2, 4, 1))
sketch15.addConstraint(Sketcher.Constraint("Horizontal", 0))
sketch15.addConstraint(Sketcher.Constraint("Horizontal", 2))
sketch15.addConstraint(Sketcher.Constraint("Horizontal", 4))
sketch15.addConstraint(Sketcher.Constraint("Horizontal", 6))
sketch15.addConstraint(Sketcher.Constraint("Coincident", 5, 3, 3, 3))
sketch15.addConstraint(Sketcher.Constraint("Vertical", 7, 3, 0, 2))
sketch15.addConstraint(Sketcher.Constraint("Radius", 1, 2.2))
sketch15.addConstraint(Sketcher.Constraint("Radius", 5, 2.1))
sketch15.addConstraint(Sketcher.Constraint("DistanceX", 0, 1, 0, 2, 5.7))
sketch15.addConstraint(Sketcher.Constraint("DistanceY", 4, 2, -1, 1, 6.0))
sketch15.addConstraint(Sketcher.Constraint("DistanceX", -1, 1, 1, 3, 2.85))
pocket4 = body.newObject("PartDesign::Pocket", "Pocket003")
pocket4.Profile = sketch15
pocket4.Length = 0.1
doc.recompute()

fillet = body.newObject("PartDesign::Fillet", "Fillet")
fillet.Base = (pocket4, edges_at(pocket4, [(4.85, 13.2, 0), (-20.75, 13.2, 0)]))
fillet.Radius = 0.5

# Sketch on XZ plane
sketch16 = body.newObject("Sketcher::SketchObject", "Sketch015")
sketch16.AttachmentSupport = (doc.getObject("XZ_Plane"), [""])
sketch16.MapMode = "FlatFace"
sketch16.AttachmentOffset = App.Placement(V(0, 0, -12.7), App.Rotation())
sketch16.addGeometry(Part.Circle(V(13, 0, 0), V(0, 0, 1), 7), False)
sketch16.addConstraint(Sketcher.Constraint("PointOnObject", 0, 3, -1))
sketch16.addConstraint(Sketcher.Constraint("Diameter", 0, 13.1))
sketch16.addConstraint(Sketcher.Constraint("DistanceX", -1, 1, 0, 3, 12.8))
pad10 = body.newObject("PartDesign::Pad", "Pad009")
pad10.Profile = sketch16
pad10.Length = 0.1
pad10.Reversed = True
doc.recompute()

mirrored2 = body.newObject("PartDesign::Mirrored", "Mirrored001")
mirrored2.Originals = [pad10]
mirrored2.MirrorPlane = (doc.getObject("YZ_Plane"), [""])
body.Tip = mirrored2
doc.recompute()

fillet2 = body.newObject("PartDesign::Fillet", "Fillet001")
fillet2.Base = (mirrored2, edges_at(mirrored2, [
    (-4.6, 1.8, -8.1),
    (0, 1.8, -6.35),
    (4.6, 1.8, -8.1),
    (0, 1.8, -9.85),
    (-4.6, 4.6, -8.1),
    (0, 4.6, -6.35),
    (4.6, 4.6, -8.1),
    (0, 4.6, -9.85),
]))
fillet2.Radius = 0.2

doc.recompute()
